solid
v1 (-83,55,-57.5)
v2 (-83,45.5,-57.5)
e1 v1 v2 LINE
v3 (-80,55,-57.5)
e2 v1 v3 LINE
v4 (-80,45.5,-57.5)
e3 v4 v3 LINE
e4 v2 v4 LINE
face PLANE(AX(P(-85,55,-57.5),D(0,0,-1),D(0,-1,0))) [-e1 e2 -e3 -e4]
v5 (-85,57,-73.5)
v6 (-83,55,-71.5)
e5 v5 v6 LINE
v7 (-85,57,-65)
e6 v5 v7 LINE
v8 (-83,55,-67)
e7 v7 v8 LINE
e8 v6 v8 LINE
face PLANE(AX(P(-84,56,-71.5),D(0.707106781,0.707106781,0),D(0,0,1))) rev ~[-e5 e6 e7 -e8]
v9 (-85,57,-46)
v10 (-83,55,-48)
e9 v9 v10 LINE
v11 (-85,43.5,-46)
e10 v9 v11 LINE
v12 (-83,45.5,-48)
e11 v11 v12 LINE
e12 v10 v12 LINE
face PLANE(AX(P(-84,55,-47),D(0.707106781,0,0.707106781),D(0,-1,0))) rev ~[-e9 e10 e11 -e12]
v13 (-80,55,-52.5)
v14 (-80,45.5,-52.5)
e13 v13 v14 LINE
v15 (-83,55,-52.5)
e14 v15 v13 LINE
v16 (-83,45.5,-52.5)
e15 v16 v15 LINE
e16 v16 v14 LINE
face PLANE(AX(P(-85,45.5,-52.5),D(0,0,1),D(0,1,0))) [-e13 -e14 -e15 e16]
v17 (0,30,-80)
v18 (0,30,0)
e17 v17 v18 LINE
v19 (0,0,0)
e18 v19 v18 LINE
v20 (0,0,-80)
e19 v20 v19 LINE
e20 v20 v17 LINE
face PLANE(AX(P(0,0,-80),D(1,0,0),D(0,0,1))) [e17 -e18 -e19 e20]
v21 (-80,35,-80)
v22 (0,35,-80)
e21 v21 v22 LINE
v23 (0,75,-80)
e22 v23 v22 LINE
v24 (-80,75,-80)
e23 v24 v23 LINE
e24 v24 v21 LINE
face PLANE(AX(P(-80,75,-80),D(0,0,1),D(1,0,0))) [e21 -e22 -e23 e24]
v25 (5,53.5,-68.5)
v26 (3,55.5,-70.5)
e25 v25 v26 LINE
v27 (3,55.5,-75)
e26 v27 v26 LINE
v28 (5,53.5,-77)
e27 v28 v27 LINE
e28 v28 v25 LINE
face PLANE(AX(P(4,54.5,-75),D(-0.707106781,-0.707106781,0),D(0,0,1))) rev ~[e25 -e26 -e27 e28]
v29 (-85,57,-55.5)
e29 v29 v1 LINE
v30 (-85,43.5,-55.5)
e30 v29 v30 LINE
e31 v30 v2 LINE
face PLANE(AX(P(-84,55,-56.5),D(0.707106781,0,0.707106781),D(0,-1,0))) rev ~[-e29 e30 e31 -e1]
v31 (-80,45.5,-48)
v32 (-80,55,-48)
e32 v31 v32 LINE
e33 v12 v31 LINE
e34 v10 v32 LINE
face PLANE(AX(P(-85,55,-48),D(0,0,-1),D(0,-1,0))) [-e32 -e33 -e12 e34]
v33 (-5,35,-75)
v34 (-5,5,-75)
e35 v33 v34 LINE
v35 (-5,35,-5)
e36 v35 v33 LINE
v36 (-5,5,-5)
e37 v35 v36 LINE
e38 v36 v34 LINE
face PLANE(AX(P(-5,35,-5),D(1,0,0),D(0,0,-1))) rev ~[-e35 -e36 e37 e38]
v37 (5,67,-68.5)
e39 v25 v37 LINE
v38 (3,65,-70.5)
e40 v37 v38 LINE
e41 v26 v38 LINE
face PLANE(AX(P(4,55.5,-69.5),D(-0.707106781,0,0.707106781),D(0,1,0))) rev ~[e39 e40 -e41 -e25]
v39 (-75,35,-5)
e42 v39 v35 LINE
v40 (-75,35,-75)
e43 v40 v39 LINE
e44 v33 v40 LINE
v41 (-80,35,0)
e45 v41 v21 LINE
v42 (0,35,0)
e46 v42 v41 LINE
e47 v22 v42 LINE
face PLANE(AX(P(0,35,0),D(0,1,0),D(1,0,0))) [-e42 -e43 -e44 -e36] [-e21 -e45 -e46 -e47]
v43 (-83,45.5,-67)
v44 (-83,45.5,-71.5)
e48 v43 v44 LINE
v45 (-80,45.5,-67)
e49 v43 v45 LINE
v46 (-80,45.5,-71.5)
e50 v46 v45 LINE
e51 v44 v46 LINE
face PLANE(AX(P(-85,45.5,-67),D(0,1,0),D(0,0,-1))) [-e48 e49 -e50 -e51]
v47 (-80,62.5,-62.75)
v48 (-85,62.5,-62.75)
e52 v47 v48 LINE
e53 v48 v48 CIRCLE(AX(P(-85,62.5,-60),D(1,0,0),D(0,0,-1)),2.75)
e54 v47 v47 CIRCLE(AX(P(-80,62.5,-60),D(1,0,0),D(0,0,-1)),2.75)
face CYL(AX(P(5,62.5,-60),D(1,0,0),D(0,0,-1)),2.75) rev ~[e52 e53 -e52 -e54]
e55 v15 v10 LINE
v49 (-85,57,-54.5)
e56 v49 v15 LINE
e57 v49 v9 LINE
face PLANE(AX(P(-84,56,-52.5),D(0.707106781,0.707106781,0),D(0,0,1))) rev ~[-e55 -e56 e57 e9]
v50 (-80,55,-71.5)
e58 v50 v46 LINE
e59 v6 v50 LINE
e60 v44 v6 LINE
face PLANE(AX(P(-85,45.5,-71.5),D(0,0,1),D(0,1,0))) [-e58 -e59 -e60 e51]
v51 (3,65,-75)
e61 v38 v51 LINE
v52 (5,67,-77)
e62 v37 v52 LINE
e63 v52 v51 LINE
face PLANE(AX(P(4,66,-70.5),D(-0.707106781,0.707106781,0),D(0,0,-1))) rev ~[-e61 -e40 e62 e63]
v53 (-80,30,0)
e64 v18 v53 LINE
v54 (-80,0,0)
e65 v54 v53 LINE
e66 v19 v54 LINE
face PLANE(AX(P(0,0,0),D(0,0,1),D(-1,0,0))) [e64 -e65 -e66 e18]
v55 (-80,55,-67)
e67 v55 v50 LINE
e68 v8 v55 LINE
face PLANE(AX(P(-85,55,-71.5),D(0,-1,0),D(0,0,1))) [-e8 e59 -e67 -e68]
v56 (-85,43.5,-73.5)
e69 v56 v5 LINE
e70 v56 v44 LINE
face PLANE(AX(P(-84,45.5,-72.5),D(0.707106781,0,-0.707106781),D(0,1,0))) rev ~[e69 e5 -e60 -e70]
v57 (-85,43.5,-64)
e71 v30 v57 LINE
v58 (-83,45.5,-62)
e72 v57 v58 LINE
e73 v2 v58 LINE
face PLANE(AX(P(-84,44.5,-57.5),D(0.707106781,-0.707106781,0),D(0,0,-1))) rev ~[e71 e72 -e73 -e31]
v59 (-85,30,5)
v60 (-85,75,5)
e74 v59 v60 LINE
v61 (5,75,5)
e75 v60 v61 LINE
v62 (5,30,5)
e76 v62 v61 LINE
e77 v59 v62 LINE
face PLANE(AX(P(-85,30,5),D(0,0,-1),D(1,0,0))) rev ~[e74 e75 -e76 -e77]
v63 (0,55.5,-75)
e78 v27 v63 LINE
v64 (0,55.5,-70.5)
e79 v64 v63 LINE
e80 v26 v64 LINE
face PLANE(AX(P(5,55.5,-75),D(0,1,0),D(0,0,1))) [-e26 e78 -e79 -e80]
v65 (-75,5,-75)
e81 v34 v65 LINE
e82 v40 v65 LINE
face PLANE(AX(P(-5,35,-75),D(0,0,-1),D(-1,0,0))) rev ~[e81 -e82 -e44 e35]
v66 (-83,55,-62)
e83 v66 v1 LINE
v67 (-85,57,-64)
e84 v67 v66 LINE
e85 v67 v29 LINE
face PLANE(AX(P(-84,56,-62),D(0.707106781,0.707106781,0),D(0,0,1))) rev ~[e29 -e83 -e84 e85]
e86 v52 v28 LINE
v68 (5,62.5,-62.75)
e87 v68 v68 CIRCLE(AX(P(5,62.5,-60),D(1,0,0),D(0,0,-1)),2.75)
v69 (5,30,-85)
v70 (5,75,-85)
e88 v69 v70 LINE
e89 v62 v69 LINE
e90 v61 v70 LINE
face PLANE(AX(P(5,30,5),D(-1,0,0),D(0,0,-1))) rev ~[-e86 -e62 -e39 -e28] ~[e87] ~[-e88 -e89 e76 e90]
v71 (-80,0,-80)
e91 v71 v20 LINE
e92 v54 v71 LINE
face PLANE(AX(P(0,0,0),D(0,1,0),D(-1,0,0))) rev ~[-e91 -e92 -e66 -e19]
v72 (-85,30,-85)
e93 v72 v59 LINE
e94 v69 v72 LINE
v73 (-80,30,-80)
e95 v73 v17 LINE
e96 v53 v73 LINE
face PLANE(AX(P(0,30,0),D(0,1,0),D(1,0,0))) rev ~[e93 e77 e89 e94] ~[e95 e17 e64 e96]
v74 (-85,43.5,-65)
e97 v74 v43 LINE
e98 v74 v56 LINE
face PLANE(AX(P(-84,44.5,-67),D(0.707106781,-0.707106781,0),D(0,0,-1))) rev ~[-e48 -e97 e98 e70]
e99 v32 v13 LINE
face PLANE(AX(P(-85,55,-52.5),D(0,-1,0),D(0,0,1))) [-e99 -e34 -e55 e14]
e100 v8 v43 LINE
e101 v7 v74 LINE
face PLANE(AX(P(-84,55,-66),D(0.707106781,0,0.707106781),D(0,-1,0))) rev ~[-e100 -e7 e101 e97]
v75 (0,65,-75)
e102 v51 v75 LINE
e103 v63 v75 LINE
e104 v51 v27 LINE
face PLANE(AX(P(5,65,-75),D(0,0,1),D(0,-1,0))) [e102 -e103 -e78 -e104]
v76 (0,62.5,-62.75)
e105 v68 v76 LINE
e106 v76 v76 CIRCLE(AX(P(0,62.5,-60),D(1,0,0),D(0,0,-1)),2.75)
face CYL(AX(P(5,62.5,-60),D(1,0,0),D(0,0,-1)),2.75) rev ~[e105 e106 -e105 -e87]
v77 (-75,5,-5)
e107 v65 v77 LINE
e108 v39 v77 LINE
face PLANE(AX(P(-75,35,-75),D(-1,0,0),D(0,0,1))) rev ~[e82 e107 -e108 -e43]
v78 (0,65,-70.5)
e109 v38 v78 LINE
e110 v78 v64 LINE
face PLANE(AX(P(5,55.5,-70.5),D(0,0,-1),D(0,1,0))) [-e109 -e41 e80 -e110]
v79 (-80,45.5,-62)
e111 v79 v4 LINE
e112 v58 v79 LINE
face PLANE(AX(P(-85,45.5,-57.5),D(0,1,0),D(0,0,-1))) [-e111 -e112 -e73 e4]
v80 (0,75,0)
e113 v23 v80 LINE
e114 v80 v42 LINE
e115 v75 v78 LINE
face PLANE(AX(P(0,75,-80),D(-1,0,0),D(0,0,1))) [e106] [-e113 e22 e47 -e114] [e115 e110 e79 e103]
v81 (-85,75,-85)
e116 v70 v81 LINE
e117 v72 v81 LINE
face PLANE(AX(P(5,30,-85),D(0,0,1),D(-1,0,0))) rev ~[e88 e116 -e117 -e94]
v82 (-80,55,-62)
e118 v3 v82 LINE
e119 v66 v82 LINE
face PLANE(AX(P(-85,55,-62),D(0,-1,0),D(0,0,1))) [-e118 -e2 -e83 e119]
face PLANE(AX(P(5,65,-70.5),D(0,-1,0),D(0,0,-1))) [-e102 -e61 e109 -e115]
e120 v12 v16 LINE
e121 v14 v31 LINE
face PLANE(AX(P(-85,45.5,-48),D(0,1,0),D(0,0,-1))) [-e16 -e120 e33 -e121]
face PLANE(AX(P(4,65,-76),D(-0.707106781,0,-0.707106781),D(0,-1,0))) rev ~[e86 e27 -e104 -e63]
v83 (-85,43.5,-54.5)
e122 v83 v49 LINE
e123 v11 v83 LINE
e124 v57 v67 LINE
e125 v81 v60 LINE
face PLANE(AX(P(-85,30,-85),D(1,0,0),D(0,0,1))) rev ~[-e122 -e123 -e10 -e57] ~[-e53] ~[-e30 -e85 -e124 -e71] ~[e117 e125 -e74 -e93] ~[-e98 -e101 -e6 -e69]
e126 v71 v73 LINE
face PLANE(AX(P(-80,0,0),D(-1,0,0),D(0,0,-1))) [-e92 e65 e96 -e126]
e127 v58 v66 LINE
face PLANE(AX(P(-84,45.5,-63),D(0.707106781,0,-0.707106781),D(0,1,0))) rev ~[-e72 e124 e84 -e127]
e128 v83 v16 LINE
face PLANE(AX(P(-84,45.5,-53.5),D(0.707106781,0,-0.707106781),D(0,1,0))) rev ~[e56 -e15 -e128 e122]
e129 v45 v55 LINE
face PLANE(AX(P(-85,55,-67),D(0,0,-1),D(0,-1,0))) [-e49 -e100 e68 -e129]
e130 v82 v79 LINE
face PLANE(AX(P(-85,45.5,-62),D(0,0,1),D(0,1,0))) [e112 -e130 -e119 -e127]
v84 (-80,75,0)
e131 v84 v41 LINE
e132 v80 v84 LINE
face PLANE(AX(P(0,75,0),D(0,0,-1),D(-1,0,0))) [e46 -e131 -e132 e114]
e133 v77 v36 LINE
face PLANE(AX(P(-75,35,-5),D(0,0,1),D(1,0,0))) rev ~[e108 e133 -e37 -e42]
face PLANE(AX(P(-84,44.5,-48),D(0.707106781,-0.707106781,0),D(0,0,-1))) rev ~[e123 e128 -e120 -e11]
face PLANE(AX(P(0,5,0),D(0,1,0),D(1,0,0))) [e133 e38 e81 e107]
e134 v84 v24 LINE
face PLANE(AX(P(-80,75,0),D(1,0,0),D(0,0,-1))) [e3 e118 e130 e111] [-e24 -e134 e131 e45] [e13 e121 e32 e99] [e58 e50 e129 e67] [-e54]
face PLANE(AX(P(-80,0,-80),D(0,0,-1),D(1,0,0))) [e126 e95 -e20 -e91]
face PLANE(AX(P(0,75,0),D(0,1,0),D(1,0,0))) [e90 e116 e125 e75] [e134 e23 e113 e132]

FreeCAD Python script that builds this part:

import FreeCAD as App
import Part
import Sketcher
from FreeCAD import Vector
Q = App.Units.Quantity


def edges_at(feature, points):
    """Names of the edges that pass closest to the given points."""
    edges = feature.Shape.Edges
    near = lambda p: min(range(len(edges)), key=lambda i: edges[i].distToShape(Part.Vertex(*p))[0])
    return sorted({f"Edge{near(p) + 1}" for p in points})

doc = App.newDocument("Part")
body = doc.addObject("PartDesign::Body", "Body")

# Sketch on XZ plane
sketch1 = body.newObject("Sketcher::SketchObject", "Sketch")
sketch1.AttachmentSupport = (doc.getObject("XZ_Plane"), [""])
sketch1.MapMode = "FlatFace"
sketch1.addGeometry(Part.LineSegment(Vector(-80, 0, 0), Vector(0, 0, 0)), False)
sketch1.addGeometry(Part.LineSegment(Vector(0, 0, 0), Vector(0, -80, 0)), False)
sketch1.addGeometry(Part.LineSegment(Vector(0, -80, 0), Vector(-80, -80, 0)), False)
sketch1.addGeometry(Part.LineSegment(Vector(-80, -80, 0), Vector(-80, 0, 0)), False)
sketch1.addConstraint(Sketcher.Constraint("Coincident", 0, 2, 1, 1))
sketch1.addConstraint(Sketcher.Constraint("Coincident", 1, 2, 2, 1))
sketch1.addConstraint(Sketcher.Constraint("Coincident", 2, 2, 3, 1))
sketch1.addConstraint(Sketcher.Constraint("Coincident", 3, 2, 0, 1))
sketch1.addConstraint(Sketcher.Constraint("Horizontal", 0))
sketch1.addConstraint(Sketcher.Constraint("Vertical", 1))
sketch1.addConstraint(Sketcher.Constraint("Horizontal", 2))
sketch1.addConstraint(Sketcher.Constraint("Vertical", 3))
sketch1.addConstraint(Sketcher.Constraint("Coincident", 0, 2, -1, 1))
sketch1.addConstraint(Sketcher.Constraint("Equal", 2, 1))
sketch1.addConstraint(Sketcher.Constraint("DistanceX", 0, 1, 0, 2, Q("80 mm")))
pad1 = body.newObject("PartDesign::Pad", "Pad")
pad1.Profile = sketch1
pad1.Length = 30
pad1.Reversed = True

# Sketch on XZ plane
sketch2 = body.newObject("Sketcher::SketchObject", "Sketch001")
sketch2.AttachmentSupport = (doc.getObject("XZ_Plane"), [""])
sketch2.MapMode = "FlatFace"
sketch2.AttachmentOffset = App.Placement(Vector(0, 0, -30), App.Rotation())
sketch2.addGeometry(Part.LineSegment(Vector(-85, -85, 0), Vector(-85, 5, 0)), False)
sketch2.addGeometry(Part.LineSegment(Vector(-85, 5, 0), Vector(5, 5, 0)), False)
sketch2.addGeometry(Part.LineSegment(Vector(5, 5, 0), Vector(5, -85, 0)), False)
sketch2.addGeometry(Part.LineSegment(Vector(5, -85, 0), Vector(-85, -85, 0)), False)
sketch2.addConstraint(Sketcher.Constraint("Coincident", 0, 2, 1, 1))
sketch2.addConstraint(Sketcher.Constraint("Coincident", 1, 2, 2, 1))
sketch2.addConstraint(Sketcher.Constraint("Coincident", 2, 2, 3, 1))
sketch2.addConstraint(Sketcher.Constraint("Coincident", 3, 2, 0, 1))
sketch2.addConstraint(Sketcher.Constraint("Vertical", 0))
sketch2.addConstraint(Sketcher.Constraint("Horizontal", 1))
sketch2.addConstraint(Sketcher.Constraint("Vertical", 2))
sketch2.addConstraint(Sketcher.Constraint("Horizontal", 3))
sketch2.addConstraint(Sketcher.Constraint("Equal", 3, 0))
sketch2.addConstraint(Sketcher.Constraint("DistanceY", -1, 1, 0, 2, Q("5 mm")))
sketch2.addConstraint(Sketcher.Constraint("DistanceX", -1, 1, 1, 2, Q("5 mm")))
sketch2.addConstraint(Sketcher.Constraint("DistanceX", 1, 1, 1, 2, Q("90 mm")))
pad2 = body.newObject("PartDesign::Pad", "Pad001")
pad2.Profile = sketch2
pad2.Length = 45
pad2.Reversed = True

# Sketch on XZ plane
sketch3 = body.newObject("Sketcher::SketchObject", "Sketch002")
sketch3.AttachmentSupport = (doc.getObject("XZ_Plane"), [""])
sketch3.MapMode = "FlatFace"
sketch3.AttachmentOffset = App.Placement(Vector(0, 0, -75), App.Rotation())
sketch3.addGeometry(Part.LineSegment(Vector(-80, 0, 0), Vector(0, 0, 0)), False)
sketch3.addGeometry(Part.LineSegment(Vector(0, 0, 0), Vector(0, -80, 0)), False)
sketch3.addGeometry(Part.LineSegment(Vector(0, -80, 0), Vector(-80, -80, 0)), False)
sketch3.addGeometry(Part.LineSegment(Vector(-80, -80, 0), Vector(-80, 0, 0)), False)
sketch3.addConstraint(Sketcher.Constraint("Coincident", 0, 2, 1, 1))
sketch3.addConstraint(Sketcher.Constraint("Coincident", 1, 2, 2, 1))
sketch3.addConstraint(Sketcher.Constraint("Coincident", 2, 2, 3, 1))
sketch3.addConstraint(Sketcher.Constraint("Coincident", 3, 2, 0, 1))
sketch3.addConstraint(Sketcher.Constraint("Horizontal", 0))
sketch3.addConstraint(Sketcher.Constraint("Vertical", 1))
sketch3.addConstraint(Sketcher.Constraint("Horizontal", 2))
sketch3.addConstraint(Sketcher.Constraint("Vertical", 3))
sketch3.addConstraint(Sketcher.Constraint("Coincident", 0, 2, -1, 1))
sketch3.addConstraint(Sketcher.Constraint("Equal", 2, 1))
sketch3.addConstraint(Sketcher.Constraint("DistanceX", 0, 1, 0, 2, Q("80 mm")))
pocket1 = body.newObject("PartDesign::Pocket", "Pocket")
pocket1.Profile = sketch3
pocket1.Length = 40
pocket1.Reversed = True

# Sketch on XZ plane
sketch4 = body.newObject("Sketcher::SketchObject", "Sketch003")
sketch4.AttachmentSupport = (doc.getObject("XZ_Plane"), [""])
sketch4.MapMode = "FlatFace"
sketch4.AttachmentOffset = App.Placement(Vector(0, 0, -35), App.Rotation())
sketch4.addGeometry(Part.LineSegment(Vector(-75, -75, 0), Vector(-75, -5, 0)), False)
sketch4.addGeometry(Part.LineSegment(Vector(-75, -5, 0), Vector(-5, -5, 0)), False)
sketch4.addGeometry(Part.LineSegment(Vector(-5, -5, 0), Vector(-5, -75, 0)), False)
sketch4.addGeometry(Part.LineSegment(Vector(-5, -75, 0), Vector(-75, -75, 0)), False)
sketch4.addConstraint(Sketcher.Constraint("Coincident", 0, 2, 1, 1))
sketch4.addConstraint(Sketcher.Constraint("Coincident", 1, 2, 2, 1))
sketch4.addConstraint(Sketcher.Constraint("Coincident", 2, 2, 3, 1))
sketch4.addConstraint(Sketcher.Constraint("Coincident", 3, 2, 0, 1))
sketch4.addConstraint(Sketcher.Constraint("Vertical", 0))
sketch4.addConstraint(Sketcher.Constraint("Horizontal", 1))
sketch4.addConstraint(Sketcher.Constraint("Vertical", 2))
sketch4.addConstraint(Sketcher.Constraint("Horizontal", 3))
sketch4.addConstraint(Sketcher.Constraint("Equal", 3, 0))
sketch4.addConstraint(Sketcher.Constraint("DistanceY", 0, 2, -1, 1, Q("5 mm")))
sketch4.addConstraint(Sketcher.Constraint("DistanceX", 1, 2, -1, 1, Q("5 mm")))
sketch4.addConstraint(Sketcher.Constraint("DistanceX", 1, 1, 1, 2, Q("70 mm")))
pocket2 = body.newObject("PartDesign::Pocket", "Pocket001")
pocket2.Profile = sketch4
pocket2.Length = 30
pocket2.Reversed = True

# Sketch on YZ plane
sketch5 = body.newObject("Sketcher::SketchObject", "Sketch004")
sketch5.AttachmentSupport = (doc.getObject("YZ_Plane"), [""])
sketch5.MapMode = "FlatFace"
sketch5.AttachmentOffset = App.Placement(Vector(0, 0, 5), App.Rotation())
sketch5.addGeometry(Part.Circle(Vector(62.5, -60, 0), Vector(0, 0, 1), 2.8), False)
sketch5.addConstraint(Sketcher.Constraint("Diameter", 0, Q("5.5 mm")))
sketch5.addConstraint(Sketcher.Constraint("DistanceY", 0, 3, -1, 1, Q("60 mm")))
sketch5.addConstraint(Sketcher.Constraint("DistanceX", -1, 1, 0, 3, Q("62.5 mm")))
pocket3 = body.newObject("PartDesign::Pocket", "Pocket002")
pocket3.Profile = sketch5
pocket3.Type = "ThroughAll"

# Sketch on YZ plane
sketch6 = body.newObject("Sketcher::SketchObject", "Sketch005")
sketch6.AttachmentSupport = (doc.getObject("YZ_Plane"), [""])
sketch6.MapMode = "FlatFace"
sketch6.AttachmentOffset = App.Placement(Vector(0, 0, 5), App.Rotation())
sketch6.addGeometry(Part.LineSegment(Vector(65, -75, 0), Vector(65, -70.5, 0)), False)
sketch6.addGeometry(Part.LineSegment(Vector(65, -70.5, 0), Vector(55.5, -70.5, 0)), False)
sketch6.addGeometry(Part.LineSegment(Vector(55.5, -70.5, 0), Vector(55.5, -75, 0)), False)
sketch6.addGeometry(Part.LineSegment(Vector(55.5, -75, 0), Vector(65, -75, 0)), False)
sketch6.addConstraint(Sketcher.Constraint("Coincident", 0, 2, 1, 1))
sketch6.addConstraint(Sketcher.Constraint("Coincident", 1, 2, 2, 1))
sketch6.addConstraint(Sketcher.Constraint("Coincident", 2, 2, 3, 1))
sketch6.addConstraint(Sketcher.Constraint("Coincident", 3, 2, 0, 1))
sketch6.addConstraint(Sketcher.Constraint("Vertical", 0))
sketch6.addConstraint(Sketcher.Constraint("Horizontal", 1))
sketch6.addConstraint(Sketcher.Constraint("Vertical", 2))
sketch6.addConstraint(Sketcher.Constraint("Horizontal", 3))
sketch6.addConstraint(Sketcher.Constraint("DistanceX", 1, 2, 1, 1, Q("9.5 mm")))
sketch6.addConstraint(Sketcher.Constraint("DistanceY", 0, 1, 0, 2, Q("4.5 mm")))
sketch6.addConstraint(Sketcher.Constraint("DistanceX", -1, 1, 0, 2, Q("65 mm")))
sketch6.addConstraint(Sketcher.Constraint("DistanceY", 2, 2, -1, 1, Q("75 mm")))
pocket4 = body.newObject("PartDesign::Pocket", "Pocket003")
pocket4.Profile = sketch6
pocket4.Length = 10
doc.recompute()

chamfer = body.newObject("PartDesign::Chamfer", "Chamfer")
chamfer.Base = (pocket4, edges_at(pocket4, [
    (5, 60.25, -70.5),
    (5, 65, -72.75),
    (5, 60.25, -75),
    (5, 55.5, -72.75),
]))
chamfer.Size = 2

# Sketch on YZ plane
sketch7 = body.newObject("Sketcher::SketchObject", "Sketch006")
sketch7.AttachmentSupport = (doc.getObject("YZ_Plane"), [""])
sketch7.MapMode = "FlatFace"
sketch7.AttachmentOffset = App.Placement(Vector(0, 0, -85), App.Rotation())
sketch7.addGeometry(Part.LineSegment(Vector(55, -57.5, 0), Vector(55, -62, 0)), False)
sketch7.addGeometry(Part.LineSegment(Vector(55, -62, 0), Vector(45.5, -62, 0)), False)
sketch7.addGeometry(Part.LineSegment(Vector(45.5, -62, 0), Vector(45.5, -57.5, 0)), False)
sketch7.addGeometry(Part.LineSegment(Vector(45.5, -57.5, 0), Vector(55, -57.5, 0)), False)
sketch7.addGeometry(Part.LineSegment(Vector(55, -67, 0), Vector(55, -71.5, 0)), False)
sketch7.addGeometry(Part.LineSegment(Vector(55, -71.5, 0), Vector(45.5, -71.5, 0)), False)
sketch7.addGeometry(Part.LineSegment(Vector(45.5, -71.5, 0), Vector(45.5, -67, 0)), False)
sketch7.addGeometry(Part.LineSegment(Vector(45.5, -67, 0), Vector(55, -67, 0)), False)
sketch7.addGeometry(Part.LineSegment(Vector(55, -48, 0), Vector(55, -52.5, 0)), False)
sketch7.addGeometry(Part.LineSegment(Vector(55, -52.5, 0), Vector(45.5, -52.5, 0)), False)
sketch7.addGeometry(Part.LineSegment(Vector(45.5, -52.5, 0), Vector(45.5, -48, 0)), False)
sketch7.addGeometry(Part.LineSegment(Vector(45.5, -48, 0), Vector(55, -48, 0)), False)
sketch7.addConstraint(Sketcher.Constraint("Coincident", 0, 2, 1, 1))
sketch7.addConstraint(Sketcher.Constraint("Coincident", 1, 2, 2, 1))
sketch7.addConstraint(Sketcher.Constraint("Coincident", 2, 2, 3, 1))
sketch7.addConstraint(Sketcher.Constraint("Coincident", 3, 2, 0, 1))
sketch7.addConstraint(Sketcher.Constraint("Coincident", 4, 2, 5, 1))
sketch7.addConstraint(Sketcher.Constraint("Coincident", 5, 2, 6, 1))
sketch7.addConstraint(Sketcher.Constraint("Coincident", 6, 2, 7, 1))
sketch7.addConstraint(Sketcher.Constraint("Coincident", 7, 2, 4, 1))
sketch7.addConstraint(Sketcher.Constraint("Coincident", 8, 2, 9, 1))
sketch7.addConstraint(Sketcher.Constraint("Coincident", 9, 2, 10, 1))
sketch7.addConstraint(Sketcher.Constraint("Coincident", 10, 2, 11, 1))
sketch7.addConstraint(Sketcher.Constraint("Coincident", 11, 2, 8, 1))
sketch7.addConstraint(Sketcher.Constraint("Vertical", 0))
sketch7.addConstraint(Sketcher.Constraint("Horizontal", 1))
sketch7.addConstraint(Sketcher.Constraint("Vertical", 2))
sketch7.addConstraint(Sketcher.Constraint("Horizontal", 3))
sketch7.addConstraint(Sketcher.Constraint("Vertical", 4))
sketch7.addConstraint(Sketcher.Constraint("Horizontal", 5))
sketch7.addConstraint(Sketcher.Constraint("Vertical", 6))
sketch7.addConstraint(Sketcher.Constraint("Horizontal", 7))
sketch7.addConstraint(Sketcher.Constraint("Vertical", 8))
sketch7.addConstraint(Sketcher.Constraint("Horizontal", 9))
sketch7.addConstraint(Sketcher.Constraint("Vertical", 10))
sketch7.addConstraint(Sketcher.Constraint("Horizontal", 11))
sketch7.addConstraint(Sketcher.Constraint("Vertical", 3, 2, 4, 2))
sketch7.addConstraint(Sketcher.Constraint("Vertical", 2, 2, 5, 2))
sketch7.addConstraint(Sketcher.Constraint("Vertical", 7, 2, 8, 2))
sketch7.addConstraint(Sketcher.Constraint("Vertical", 6, 2, 9, 2))
sketch7.addConstraint(Sketcher.Constraint("Equal", 2, 4))
sketch7.addConstraint(Sketcher.Constraint("Equal", 6, 8))
sketch7.addConstraint(Sketcher.Constraint("DistanceX", 1, 2, 1, 1, Q("9.5 mm")))
sketch7.addConstraint(Sketcher.Constraint("DistanceY", 0, 2, 0, 1, Q("4.5 mm")))
sketch7.addConstraint(Sketcher.Constraint("DistanceY", 6, 2, 1, 2, Q("5 mm")))
sketch7.addConstraint(Sketcher.Constraint("DistanceY", 3, 2, 8, 2, Q("5 mm")))
sketch7.addConstraint(Sketcher.Constraint("DistanceX", -1, 1, 0, 2, Q("55 mm")))
sketch7.addConstraint(Sketcher.Constraint("DistanceY", 0, 2, -1, 1, Q("62 mm")))
pocket5 = body.newObject("PartDesign::Pocket", "Pocket004")
pocket5.Profile = sketch7
pocket5.Length = 10
pocket5.Reversed = True
doc.recompute()

chamfer2 = body.newObject("PartDesign::Chamfer", "Chamfer001")
chamfer2.Base = (pocket5, edges_at(pocket5, [
    (-85, 55, -69.25),
    (-85, 50.25, -71.5),
    (-85, 50.25, -67),
    (-85, 45.5, -69.25),
    (-85, 50.25, -62),
    (-85, 55, -59.75),
    (-85, 50.25, -57.5),
    (-85, 45.5, -59.75),
    (-85, 50.25, -52.5),
    (-85, 55, -50.25),
    (-85, 50.25, -48),
    (-85, 45.5, -50.25),
]))
chamfer2.Size = 2

doc.recompute()
